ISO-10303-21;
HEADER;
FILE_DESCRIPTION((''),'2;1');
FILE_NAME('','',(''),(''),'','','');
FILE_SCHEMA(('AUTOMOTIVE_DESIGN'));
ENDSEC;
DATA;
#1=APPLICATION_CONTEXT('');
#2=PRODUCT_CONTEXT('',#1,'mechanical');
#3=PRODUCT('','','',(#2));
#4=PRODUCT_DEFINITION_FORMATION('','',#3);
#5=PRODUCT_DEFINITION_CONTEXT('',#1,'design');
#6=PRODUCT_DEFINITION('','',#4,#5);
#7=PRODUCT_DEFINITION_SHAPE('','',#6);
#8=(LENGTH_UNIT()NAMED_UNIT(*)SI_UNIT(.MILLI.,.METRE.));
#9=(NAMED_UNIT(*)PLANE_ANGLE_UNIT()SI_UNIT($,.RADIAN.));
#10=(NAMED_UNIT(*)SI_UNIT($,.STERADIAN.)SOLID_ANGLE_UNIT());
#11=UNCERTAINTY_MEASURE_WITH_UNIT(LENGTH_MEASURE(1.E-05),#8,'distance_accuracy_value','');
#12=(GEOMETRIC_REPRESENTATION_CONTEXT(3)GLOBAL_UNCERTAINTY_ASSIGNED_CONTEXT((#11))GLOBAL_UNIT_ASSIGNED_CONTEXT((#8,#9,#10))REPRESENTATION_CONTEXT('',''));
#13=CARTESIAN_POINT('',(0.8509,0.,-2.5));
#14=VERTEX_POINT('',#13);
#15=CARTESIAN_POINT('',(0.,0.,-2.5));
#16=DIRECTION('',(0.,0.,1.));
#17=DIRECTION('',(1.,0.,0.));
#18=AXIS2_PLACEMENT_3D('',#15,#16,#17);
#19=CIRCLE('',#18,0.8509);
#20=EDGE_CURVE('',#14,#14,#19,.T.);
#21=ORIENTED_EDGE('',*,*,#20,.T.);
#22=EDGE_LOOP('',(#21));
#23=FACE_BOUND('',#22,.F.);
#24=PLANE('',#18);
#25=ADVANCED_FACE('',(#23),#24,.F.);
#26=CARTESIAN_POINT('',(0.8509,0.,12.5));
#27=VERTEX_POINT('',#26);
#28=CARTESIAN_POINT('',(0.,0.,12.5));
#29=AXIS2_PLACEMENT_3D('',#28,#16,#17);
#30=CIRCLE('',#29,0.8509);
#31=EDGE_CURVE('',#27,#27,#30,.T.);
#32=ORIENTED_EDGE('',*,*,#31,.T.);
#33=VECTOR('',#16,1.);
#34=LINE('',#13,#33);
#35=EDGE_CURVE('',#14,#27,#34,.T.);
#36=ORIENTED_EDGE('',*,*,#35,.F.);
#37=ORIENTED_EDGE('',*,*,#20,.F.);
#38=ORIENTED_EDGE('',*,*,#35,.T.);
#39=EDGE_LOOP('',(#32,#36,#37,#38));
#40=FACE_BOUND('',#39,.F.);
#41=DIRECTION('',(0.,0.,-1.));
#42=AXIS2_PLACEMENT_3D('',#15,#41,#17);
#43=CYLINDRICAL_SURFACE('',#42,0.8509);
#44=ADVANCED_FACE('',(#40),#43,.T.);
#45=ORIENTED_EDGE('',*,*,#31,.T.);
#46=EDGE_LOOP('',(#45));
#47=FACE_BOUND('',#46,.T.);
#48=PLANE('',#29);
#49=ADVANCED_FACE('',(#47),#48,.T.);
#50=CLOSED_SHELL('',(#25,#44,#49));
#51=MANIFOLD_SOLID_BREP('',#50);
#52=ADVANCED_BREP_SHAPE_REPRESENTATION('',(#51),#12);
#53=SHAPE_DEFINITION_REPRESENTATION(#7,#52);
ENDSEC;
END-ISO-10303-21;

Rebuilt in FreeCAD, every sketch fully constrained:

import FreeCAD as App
import Part
import Sketcher
from FreeCAD import Vector
Q = App.Units.Quantity

doc = App.newDocument("Part")
body = doc.addObject("PartDesign::Body", "Body")

sketch1 = body.newObject("Sketcher::SketchObject", "Sketch")
sketch1.AttachmentSupport = (doc.getObject("XY_Plane"), [""])
sketch1.MapMode = "FlatFace"
sketch1.AttachmentOffset = App.Placement(Vector(0, 0, -2.5), App.Rotation())
sketch1.addGeometry(Part.Circle(Vector(0, 0, 0), Vector(0, 0, 1), 0.9), False)
sketch1.addConstraint(Sketcher.Constraint("Coincident", 0, 3, -1, 1))
sketch1.addConstraint(Sketcher.Constraint("Diameter", 0, Q("1.7018 mm")))
pad1 = body.newObject("PartDesign::Pad", "Pad")
pad1.Profile = sketch1
pad1.Length = 15

doc.recompute()
